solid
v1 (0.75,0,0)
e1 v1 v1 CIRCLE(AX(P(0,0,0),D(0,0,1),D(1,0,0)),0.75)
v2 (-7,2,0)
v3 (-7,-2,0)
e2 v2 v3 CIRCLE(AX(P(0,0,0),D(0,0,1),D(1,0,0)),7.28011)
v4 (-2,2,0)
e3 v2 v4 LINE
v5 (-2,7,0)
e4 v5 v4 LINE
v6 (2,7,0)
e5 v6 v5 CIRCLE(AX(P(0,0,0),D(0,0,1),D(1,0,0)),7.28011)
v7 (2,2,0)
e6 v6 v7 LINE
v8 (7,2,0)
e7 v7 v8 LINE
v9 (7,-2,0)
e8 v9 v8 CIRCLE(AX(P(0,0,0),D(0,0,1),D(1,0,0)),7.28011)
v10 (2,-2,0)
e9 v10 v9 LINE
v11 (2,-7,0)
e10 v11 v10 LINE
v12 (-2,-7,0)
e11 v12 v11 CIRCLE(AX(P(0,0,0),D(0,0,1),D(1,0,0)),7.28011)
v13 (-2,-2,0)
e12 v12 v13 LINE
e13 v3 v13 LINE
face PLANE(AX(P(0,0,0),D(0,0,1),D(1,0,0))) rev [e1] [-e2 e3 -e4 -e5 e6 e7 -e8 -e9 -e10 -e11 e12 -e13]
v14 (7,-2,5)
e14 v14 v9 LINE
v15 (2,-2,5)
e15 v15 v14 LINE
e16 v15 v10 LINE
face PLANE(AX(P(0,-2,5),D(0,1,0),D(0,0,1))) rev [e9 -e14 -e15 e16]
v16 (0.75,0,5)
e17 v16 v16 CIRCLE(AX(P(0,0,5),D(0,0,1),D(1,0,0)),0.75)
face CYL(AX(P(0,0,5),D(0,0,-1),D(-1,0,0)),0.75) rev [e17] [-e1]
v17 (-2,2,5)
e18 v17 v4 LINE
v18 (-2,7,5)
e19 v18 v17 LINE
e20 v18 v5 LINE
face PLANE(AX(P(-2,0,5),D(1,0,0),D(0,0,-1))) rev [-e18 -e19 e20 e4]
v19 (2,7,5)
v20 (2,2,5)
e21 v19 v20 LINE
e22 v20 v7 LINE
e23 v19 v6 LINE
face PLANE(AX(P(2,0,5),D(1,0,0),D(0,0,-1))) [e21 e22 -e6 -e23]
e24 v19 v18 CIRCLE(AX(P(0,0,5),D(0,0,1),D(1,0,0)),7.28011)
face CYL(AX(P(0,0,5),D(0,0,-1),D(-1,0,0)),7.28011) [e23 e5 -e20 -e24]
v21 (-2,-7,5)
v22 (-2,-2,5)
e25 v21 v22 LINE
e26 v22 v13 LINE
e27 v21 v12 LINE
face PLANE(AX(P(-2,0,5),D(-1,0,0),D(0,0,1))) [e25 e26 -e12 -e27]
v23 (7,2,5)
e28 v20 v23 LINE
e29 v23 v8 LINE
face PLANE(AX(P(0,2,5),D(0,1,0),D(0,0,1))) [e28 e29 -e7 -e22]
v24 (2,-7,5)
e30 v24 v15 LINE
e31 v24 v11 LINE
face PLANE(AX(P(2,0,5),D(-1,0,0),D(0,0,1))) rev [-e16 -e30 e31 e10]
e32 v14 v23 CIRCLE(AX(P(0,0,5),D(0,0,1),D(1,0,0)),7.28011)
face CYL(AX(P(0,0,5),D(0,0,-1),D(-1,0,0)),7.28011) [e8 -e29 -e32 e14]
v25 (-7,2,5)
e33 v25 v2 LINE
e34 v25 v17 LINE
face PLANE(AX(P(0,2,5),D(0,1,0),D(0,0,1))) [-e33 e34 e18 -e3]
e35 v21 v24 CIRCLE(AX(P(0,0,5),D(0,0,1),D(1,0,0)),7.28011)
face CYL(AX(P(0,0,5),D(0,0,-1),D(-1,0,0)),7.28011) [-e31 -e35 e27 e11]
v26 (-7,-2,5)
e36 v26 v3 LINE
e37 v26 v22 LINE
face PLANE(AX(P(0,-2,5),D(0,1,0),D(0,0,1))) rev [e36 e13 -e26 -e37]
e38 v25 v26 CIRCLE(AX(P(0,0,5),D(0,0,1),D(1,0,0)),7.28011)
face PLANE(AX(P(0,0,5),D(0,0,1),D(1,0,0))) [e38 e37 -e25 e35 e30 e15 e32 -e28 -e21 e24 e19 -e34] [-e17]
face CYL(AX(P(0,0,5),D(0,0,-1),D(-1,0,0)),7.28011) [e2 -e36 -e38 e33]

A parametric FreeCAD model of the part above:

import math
import FreeCAD as App
import Part
import Sketcher

doc = App.newDocument("Part")
body = doc.addObject("PartDesign::Body", "Body")

# Sketch on XY plane
sketch1 = doc.addObject("Sketcher::SketchObject", "Sketch")
body.addObject(sketch1)
sketch1.AttachmentSupport = (doc.XY_Plane, [""])
sketch1.MapMode = "FlatFace"
sketch1.addGeometry(Part.LineSegment(App.Vector(-7, -2, 0), App.Vector(-2, -2, 0)), False)
sketch1.addGeometry(Part.LineSegment(App.Vector(-2, -2, 0), App.Vector(-2, -7, 0)), False)
sketch1.addGeometry(Part.ArcOfCircle(Part.Circle(App.Vector(0, 0, 0), App.Vector(0, 0, 1), 7.3), math.radians(-106), math.radians(-74)), False)
sketch1.addGeometry(Part.LineSegment(App.Vector(2, -7, 0), App.Vector(2, -2, 0)), False)
sketch1.addGeometry(Part.LineSegment(App.Vector(2, -2, 0), App.Vector(7, -2, 0)), False)
sketch1.addGeometry(Part.ArcOfCircle(Part.Circle(App.Vector(0, 0, 0), App.Vector(0, 0, 1), 7.3), math.radians(-15.95), math.radians(0)), False)
sketch1.addGeometry(Part.ArcOfCircle(Part.Circle(App.Vector(0, 0, 0), App.Vector(0, 0, 1), 7.3), math.radians(0), math.radians(15.95)), False)
sketch1.addGeometry(Part.LineSegment(App.Vector(7, 2, 0), App.Vector(2, 2, 0)), False)
sketch1.addGeometry(Part.LineSegment(App.Vector(2, 2, 0), App.Vector(2, 7, 0)), False)
sketch1.addGeometry(Part.ArcOfCircle(Part.Circle(App.Vector(0, 0, 0), App.Vector(0, 0, 1), 7.3), math.radians(74), math.radians(106)), False)
sketch1.addGeometry(Part.LineSegment(App.Vector(-2, 7, 0), App.Vector(-2, 2, 0)), False)
sketch1.addGeometry(Part.LineSegment(App.Vector(-2, 2, 0), App.Vector(-7, 2, 0)), False)
sketch1.addGeometry(Part.ArcOfCircle(Part.Circle(App.Vector(0, 0, 0), App.Vector(0, 0, 1), 7.3), math.radians(164), math.radians(196)), False)
sketch1.addGeometry(Part.Circle(App.Vector(0, 0, 0), App.Vector(0, 0, 1), 0.8), False)
sketch1.addConstraint(Sketcher.Constraint("Coincident", 0, 2, 1, 1))
sketch1.addConstraint(Sketcher.Constraint("Coincident", 1, 2, 2, 1))
sketch1.addConstraint(Sketcher.Constraint("Coincident", 2, 2, 3, 1))
sketch1.addConstraint(Sketcher.Constraint("Coincident", 3, 2, 4, 1))
sketch1.addConstraint(Sketcher.Constraint("Coincident", 4, 2, 5, 1))
sketch1.addConstraint(Sketcher.Constraint("Tangent", 5, 2, 6, 1))
sketch1.addConstraint(Sketcher.Constraint("Coincident", 6, 2, 7, 1))
sketch1.addConstraint(Sketcher.Constraint("Coincident", 7, 2, 8, 1))
sketch1.addConstraint(Sketcher.Constraint("Coincident", 8, 2, 9, 1))
sketch1.addConstraint(Sketcher.Constraint("Coincident", 9, 2, 10, 1))
sketch1.addConstraint(Sketcher.Constraint("Coincident", 10, 2, 11, 1))
sketch1.addConstraint(Sketcher.Constraint("Coincident", 11, 2, 12, 1))
sketch1.addConstraint(Sketcher.Constraint("Coincident", 12, 2, 0, 1))
sketch1.addConstraint(Sketcher.Constraint("Horizontal", 0))
sketch1.addConstraint(Sketcher.Constraint("Vertical", 1))
sketch1.addConstraint(Sketcher.Constraint("Vertical", 3))
sketch1.addConstraint(Sketcher.Constraint("Horizontal", 4))
sketch1.addConstraint(Sketcher.Constraint("Horizontal", 7))
sketch1.addConstraint(Sketcher.Constraint("Vertical", 8))
sketch1.addConstraint(Sketcher.Constraint("Vertical", 10))
sketch1.addConstraint(Sketcher.Constraint("Horizontal", 11))
sketch1.addConstraint(Sketcher.Constraint("Coincident", 2, 3, -1, 1))
sketch1.addConstraint(Sketcher.Constraint("Coincident", 5, 3, -1, 1))
sketch1.addConstraint(Sketcher.Constraint("Coincident", 9, 3, -1, 1))
sketch1.addConstraint(Sketcher.Constraint("Coincident", 12, 3, -1, 1))
sketch1.addConstraint(Sketcher.Constraint("Coincident", 13, 3, -1, 1))
sketch1.addConstraint(Sketcher.Constraint("Equal", 2, 5))
sketch1.addConstraint(Sketcher.Constraint("Equal", 5, 6))
sketch1.addConstraint(Sketcher.Constraint("Equal", 6, 9))
sketch1.addConstraint(Sketcher.Constraint("Equal", 9, 12))
sketch1.addConstraint(Sketcher.Constraint("Symmetric", 0, 2, 7, 2, -1, 1))
sketch1.addConstraint(Sketcher.Constraint("Symmetric", 3, 2, 10, 2, -1, 1))
sketch1.addConstraint(Sketcher.Constraint("Symmetric", 0, 2, 3, 2, -2))
sketch1.addConstraint(Sketcher.Constraint("PointOnObject", 5, 2, -1))
sketch1.addConstraint(Sketcher.Constraint("Equal", 11, 1))
sketch1.addConstraint(Sketcher.Constraint("Diameter", 13, 1.5))
sketch1.addConstraint(Sketcher.Constraint("DistanceX", 0, 1, 0, 2, 5.0))
sketch1.addConstraint(Sketcher.Constraint("DistanceX", 0, 2, -1, 1, 2.0))
pad1 = doc.addObject("PartDesign::Pad", "Pad")
body.addObject(pad1)
pad1.Profile = sketch1
pad1.Length = 5

doc.recompute()
